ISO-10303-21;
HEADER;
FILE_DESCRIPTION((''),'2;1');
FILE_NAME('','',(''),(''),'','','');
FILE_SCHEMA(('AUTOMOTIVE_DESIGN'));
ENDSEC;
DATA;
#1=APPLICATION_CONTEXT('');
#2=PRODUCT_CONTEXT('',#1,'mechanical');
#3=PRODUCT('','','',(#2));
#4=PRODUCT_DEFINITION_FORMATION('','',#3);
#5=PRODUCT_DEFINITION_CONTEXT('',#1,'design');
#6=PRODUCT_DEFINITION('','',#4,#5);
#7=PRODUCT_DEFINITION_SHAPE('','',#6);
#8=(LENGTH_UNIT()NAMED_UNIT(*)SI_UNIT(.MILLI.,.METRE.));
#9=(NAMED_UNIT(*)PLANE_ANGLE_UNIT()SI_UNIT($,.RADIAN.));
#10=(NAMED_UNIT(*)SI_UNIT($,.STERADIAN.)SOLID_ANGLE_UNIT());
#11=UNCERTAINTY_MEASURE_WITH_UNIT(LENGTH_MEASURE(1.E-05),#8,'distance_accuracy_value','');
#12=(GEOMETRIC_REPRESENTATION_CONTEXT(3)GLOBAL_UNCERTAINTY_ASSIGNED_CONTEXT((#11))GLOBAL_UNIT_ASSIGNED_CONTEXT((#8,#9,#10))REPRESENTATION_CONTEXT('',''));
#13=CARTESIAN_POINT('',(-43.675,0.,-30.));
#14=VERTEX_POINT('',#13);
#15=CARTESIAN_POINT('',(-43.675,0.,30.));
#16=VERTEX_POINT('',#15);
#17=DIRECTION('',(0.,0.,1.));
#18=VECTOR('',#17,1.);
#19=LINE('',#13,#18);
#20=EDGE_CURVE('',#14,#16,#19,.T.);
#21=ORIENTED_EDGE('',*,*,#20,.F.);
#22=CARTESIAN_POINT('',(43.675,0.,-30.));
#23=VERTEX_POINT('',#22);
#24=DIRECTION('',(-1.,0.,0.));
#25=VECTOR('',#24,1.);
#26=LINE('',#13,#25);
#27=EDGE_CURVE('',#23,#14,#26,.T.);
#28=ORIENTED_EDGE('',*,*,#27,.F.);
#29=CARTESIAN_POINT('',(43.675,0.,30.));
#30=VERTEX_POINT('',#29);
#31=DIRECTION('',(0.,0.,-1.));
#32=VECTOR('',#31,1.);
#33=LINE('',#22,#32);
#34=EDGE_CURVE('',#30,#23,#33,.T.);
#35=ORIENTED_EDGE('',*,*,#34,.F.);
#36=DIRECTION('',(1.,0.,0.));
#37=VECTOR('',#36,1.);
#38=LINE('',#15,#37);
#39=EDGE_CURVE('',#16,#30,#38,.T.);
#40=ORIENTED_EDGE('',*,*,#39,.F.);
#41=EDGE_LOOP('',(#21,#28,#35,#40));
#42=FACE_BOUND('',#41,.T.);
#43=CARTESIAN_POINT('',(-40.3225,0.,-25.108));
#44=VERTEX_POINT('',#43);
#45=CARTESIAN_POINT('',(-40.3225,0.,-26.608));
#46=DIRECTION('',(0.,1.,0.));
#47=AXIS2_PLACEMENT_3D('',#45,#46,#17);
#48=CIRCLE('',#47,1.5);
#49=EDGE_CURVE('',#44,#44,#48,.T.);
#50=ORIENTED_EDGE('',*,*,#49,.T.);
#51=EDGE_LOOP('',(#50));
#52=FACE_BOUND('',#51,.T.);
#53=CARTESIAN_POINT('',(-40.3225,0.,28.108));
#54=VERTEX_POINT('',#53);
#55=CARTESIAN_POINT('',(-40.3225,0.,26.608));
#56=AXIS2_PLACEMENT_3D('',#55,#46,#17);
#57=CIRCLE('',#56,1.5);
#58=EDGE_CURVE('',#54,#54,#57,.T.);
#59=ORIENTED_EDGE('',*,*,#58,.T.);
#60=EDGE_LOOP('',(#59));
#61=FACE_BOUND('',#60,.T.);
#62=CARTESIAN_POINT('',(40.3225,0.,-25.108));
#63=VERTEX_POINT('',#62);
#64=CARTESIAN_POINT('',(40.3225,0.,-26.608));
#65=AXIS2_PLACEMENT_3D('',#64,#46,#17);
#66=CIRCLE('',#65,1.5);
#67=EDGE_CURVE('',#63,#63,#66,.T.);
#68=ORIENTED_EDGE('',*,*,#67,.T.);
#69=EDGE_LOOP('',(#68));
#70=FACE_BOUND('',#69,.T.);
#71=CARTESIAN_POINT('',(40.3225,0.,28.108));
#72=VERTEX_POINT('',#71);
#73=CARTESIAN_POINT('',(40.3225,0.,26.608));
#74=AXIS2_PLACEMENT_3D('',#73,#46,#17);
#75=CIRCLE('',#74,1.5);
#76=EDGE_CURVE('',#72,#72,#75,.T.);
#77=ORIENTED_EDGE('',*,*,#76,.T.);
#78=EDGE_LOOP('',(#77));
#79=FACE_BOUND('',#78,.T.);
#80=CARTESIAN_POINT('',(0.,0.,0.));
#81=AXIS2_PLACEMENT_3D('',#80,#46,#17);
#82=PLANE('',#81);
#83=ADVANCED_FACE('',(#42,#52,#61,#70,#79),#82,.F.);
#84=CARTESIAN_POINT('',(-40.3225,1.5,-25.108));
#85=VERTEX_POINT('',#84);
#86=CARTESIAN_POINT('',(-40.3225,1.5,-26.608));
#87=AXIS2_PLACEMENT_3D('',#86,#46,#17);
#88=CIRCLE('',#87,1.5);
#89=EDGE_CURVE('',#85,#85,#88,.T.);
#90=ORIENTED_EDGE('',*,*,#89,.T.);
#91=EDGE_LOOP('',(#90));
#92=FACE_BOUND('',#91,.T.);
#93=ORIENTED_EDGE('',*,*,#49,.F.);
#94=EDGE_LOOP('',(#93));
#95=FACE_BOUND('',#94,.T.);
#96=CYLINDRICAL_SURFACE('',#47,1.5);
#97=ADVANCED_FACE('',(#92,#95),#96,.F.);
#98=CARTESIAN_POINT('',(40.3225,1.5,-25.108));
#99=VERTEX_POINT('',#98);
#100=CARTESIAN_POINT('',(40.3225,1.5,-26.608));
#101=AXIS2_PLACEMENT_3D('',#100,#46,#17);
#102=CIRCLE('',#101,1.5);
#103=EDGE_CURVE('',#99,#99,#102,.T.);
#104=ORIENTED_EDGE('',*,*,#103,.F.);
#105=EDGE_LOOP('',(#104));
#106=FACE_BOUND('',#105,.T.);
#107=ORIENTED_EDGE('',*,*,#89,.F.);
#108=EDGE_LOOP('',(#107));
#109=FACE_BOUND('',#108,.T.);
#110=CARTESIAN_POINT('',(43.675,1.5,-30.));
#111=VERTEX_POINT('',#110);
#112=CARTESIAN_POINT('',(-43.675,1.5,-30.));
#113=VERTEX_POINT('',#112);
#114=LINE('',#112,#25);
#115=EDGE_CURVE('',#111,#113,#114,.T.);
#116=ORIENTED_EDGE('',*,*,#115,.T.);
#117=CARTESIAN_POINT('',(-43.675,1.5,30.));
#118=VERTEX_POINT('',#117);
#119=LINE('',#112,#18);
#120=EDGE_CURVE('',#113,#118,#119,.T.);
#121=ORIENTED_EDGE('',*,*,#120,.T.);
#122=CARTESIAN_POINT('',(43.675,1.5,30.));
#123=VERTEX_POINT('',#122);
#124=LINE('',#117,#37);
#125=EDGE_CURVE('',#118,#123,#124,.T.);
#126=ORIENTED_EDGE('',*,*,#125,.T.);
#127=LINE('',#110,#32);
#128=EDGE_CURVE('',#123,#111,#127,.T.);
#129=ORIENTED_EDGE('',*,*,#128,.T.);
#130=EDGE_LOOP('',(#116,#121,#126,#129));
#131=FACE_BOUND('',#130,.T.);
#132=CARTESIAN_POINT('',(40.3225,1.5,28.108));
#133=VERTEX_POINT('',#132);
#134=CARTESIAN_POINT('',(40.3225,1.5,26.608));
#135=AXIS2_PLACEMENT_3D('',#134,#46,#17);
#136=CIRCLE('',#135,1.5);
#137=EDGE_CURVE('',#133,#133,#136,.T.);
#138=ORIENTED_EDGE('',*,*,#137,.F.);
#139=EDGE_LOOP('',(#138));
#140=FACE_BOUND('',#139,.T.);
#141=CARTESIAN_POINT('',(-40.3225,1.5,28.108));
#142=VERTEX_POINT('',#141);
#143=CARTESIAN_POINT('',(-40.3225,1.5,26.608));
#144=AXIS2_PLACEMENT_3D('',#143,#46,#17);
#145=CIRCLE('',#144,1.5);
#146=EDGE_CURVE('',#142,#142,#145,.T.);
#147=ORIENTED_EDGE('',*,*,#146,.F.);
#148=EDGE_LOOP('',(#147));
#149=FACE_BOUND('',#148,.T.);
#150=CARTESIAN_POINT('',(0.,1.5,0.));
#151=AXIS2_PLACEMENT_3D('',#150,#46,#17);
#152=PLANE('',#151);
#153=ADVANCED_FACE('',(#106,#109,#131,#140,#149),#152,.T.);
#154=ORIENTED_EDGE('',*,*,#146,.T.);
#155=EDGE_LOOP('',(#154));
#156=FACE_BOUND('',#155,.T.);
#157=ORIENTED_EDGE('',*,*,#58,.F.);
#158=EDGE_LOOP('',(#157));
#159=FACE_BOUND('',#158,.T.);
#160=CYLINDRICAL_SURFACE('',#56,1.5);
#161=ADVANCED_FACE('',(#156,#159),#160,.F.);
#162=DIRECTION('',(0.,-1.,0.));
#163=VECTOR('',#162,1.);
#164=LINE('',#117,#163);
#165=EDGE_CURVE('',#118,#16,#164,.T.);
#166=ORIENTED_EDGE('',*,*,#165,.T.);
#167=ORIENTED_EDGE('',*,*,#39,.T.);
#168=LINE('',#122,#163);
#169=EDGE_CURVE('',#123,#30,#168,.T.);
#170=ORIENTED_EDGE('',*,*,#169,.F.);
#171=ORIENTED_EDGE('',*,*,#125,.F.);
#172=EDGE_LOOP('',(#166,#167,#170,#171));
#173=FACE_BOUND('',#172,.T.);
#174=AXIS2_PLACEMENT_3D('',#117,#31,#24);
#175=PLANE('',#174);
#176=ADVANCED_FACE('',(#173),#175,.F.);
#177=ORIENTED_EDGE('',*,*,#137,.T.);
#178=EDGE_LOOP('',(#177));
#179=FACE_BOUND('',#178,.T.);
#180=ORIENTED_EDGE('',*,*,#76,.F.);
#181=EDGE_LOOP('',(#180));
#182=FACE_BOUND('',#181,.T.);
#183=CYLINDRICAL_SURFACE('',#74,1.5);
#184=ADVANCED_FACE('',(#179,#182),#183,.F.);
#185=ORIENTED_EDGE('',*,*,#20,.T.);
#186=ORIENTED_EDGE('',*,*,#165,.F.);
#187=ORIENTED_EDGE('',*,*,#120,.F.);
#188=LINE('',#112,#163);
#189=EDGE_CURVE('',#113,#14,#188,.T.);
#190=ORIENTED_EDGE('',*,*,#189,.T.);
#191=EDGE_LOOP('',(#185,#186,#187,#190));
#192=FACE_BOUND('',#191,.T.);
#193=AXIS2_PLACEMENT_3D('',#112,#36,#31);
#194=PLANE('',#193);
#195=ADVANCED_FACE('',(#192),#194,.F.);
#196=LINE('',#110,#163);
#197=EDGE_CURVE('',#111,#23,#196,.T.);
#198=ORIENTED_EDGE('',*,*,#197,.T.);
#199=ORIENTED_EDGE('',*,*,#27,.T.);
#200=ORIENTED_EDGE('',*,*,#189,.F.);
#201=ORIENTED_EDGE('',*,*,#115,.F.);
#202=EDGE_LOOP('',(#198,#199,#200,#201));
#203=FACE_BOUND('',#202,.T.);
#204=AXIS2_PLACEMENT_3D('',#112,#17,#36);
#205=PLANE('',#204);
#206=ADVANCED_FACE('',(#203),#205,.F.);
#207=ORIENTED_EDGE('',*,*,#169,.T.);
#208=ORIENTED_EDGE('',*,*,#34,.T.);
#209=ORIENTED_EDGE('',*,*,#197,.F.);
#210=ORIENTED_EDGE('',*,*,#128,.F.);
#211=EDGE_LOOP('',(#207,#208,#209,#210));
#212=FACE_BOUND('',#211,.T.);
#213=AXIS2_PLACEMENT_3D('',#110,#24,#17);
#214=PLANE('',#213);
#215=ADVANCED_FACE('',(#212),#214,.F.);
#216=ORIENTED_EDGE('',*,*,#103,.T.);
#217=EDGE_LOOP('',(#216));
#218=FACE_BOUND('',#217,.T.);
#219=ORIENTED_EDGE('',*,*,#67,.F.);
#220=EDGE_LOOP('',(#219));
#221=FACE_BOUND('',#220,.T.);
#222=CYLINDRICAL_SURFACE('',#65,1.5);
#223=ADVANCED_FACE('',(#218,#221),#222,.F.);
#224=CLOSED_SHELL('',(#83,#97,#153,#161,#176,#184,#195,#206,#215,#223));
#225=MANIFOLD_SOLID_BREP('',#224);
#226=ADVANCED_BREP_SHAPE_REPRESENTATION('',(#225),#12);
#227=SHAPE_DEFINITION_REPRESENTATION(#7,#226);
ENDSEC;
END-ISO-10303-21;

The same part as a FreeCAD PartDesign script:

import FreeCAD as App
import Part
import Sketcher
from FreeCAD import Vector
Q = App.Units.Quantity


def add_polygon(sketch, points):
    """Adds a closed chain of lines whose ends are joined by coincident constraints."""
    first, n = sketch.GeometryCount, len(points)
    for a, b in zip(points, points[1:] + points[:1]):
        sketch.addGeometry(Part.LineSegment(App.Vector(*a, 0), App.Vector(*b, 0)), False)
    for i in range(n):
        sketch.addConstraint(Sketcher.Constraint("Coincident", first + i, 2, first + (i + 1) % n, 1))

doc = App.newDocument("Part")
body = doc.addObject("PartDesign::Body", "Body")

# Sketch on XZ plane
sketch1 = doc.addObject("Sketcher::SketchObject", "Sketch")
body.addObject(sketch1)
sketch1.AttachmentSupport = (doc.XZ_Plane, [""])
sketch1.MapMode = "FlatFace"
add_polygon(sketch1, [(-43.675, -30), (-43.675, 30), (43.675, 30), (43.675, -30)])  # lines 0-3
sketch1.addConstraint(Sketcher.Constraint("Vertical", 0))
sketch1.addConstraint(Sketcher.Constraint("Horizontal", 1))
sketch1.addConstraint(Sketcher.Constraint("Vertical", 2))
sketch1.addConstraint(Sketcher.Constraint("Horizontal", 3))
sketch1.addConstraint(Sketcher.Constraint("Symmetric", 0, 2, 2, 2, -1, 1))
sketch1.addConstraint(Sketcher.Constraint("DistanceY", 0, 1, 0, 2, Q("60 mm")))
sketch1.addConstraint(Sketcher.Constraint("DistanceX", 1, 1, 1, 2, Q("87.35 mm")))
pad1 = doc.addObject("PartDesign::Pad", "Pad")
body.addObject(pad1)
pad1.Profile = sketch1
pad1.Length = 1.5
pad1.Reversed = True

# Sketch on XZ plane
sketch2 = doc.addObject("Sketcher::SketchObject", "Sketch001")
body.addObject(sketch2)
sketch2.AttachmentSupport = (doc.XZ_Plane, [""])
sketch2.MapMode = "FlatFace"
sketch2.AttachmentOffset = App.Placement(Vector(0, 0, -1.5), App.Rotation())
sketch2.addGeometry(Part.Circle(Vector(-40.3225, -26.608, 0), Vector(0, 0, 1), 1.5), False)
sketch2.addGeometry(Part.Circle(Vector(40.3225, -26.608, 0), Vector(0, 0, 1), 1.5), False)
sketch2.addGeometry(Part.Circle(Vector(40.3225, 26.608, 0), Vector(0, 0, 1), 1.5), False)
sketch2.addGeometry(Part.Circle(Vector(-40.3225, 26.608, 0), Vector(0, 0, 1), 1.5), False)
sketch2.addConstraint(Sketcher.Constraint("Equal", 0, 1))
sketch2.addConstraint(Sketcher.Constraint("Equal", 1, 2))
sketch2.addConstraint(Sketcher.Constraint("Equal", 2, 3))
sketch2.addConstraint(Sketcher.Constraint("Symmetric", 0, 3, 2, 3, -1, 1))
sketch2.addConstraint(Sketcher.Constraint("Symmetric", 1, 3, 3, 3, -1, 1))
sketch2.addConstraint(Sketcher.Constraint("Symmetric", 0, 3, 1, 3, -2))
sketch2.addConstraint(Sketcher.Constraint("Diameter", 0, Q("3 mm")))
sketch2.addConstraint(Sketcher.Constraint("DistanceY", 0, 3, -1, 1, Q("26.608 mm")))
sketch2.addConstraint(Sketcher.Constraint("DistanceX", 0, 3, 1, 3, Q("80.645 mm")))
pocket1 = doc.addObject("PartDesign::Pocket", "Pocket")
body.addObject(pocket1)
pocket1.Profile = sketch2
pocket1.Length = 1.5
pocket1.Reversed = True

doc.recompute()
